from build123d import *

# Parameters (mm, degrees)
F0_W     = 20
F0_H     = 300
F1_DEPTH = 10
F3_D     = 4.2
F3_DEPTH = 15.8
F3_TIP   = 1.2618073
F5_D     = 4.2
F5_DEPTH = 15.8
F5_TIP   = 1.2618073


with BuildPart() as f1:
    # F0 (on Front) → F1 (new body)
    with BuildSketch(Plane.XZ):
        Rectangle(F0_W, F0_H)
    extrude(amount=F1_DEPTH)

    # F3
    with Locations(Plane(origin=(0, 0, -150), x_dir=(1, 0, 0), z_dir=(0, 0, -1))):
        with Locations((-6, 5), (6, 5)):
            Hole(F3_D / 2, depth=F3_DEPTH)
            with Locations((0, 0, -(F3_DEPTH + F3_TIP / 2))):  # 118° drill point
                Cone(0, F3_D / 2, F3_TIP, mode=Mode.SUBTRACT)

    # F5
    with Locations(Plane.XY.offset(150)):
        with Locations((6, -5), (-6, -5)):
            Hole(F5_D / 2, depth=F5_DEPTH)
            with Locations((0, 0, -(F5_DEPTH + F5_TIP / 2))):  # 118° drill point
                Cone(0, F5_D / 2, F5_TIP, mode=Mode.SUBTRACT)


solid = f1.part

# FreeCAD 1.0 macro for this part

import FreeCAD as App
import Part
import Sketcher
Q = App.Units.Quantity

doc = App.newDocument("Part")
body = doc.addObject("PartDesign::Body", "Body")

# Sketch on XZ plane
sketch1 = doc.addObject("Sketcher::SketchObject", "Sketch")
body.addObject(sketch1)
sketch1.AttachmentSupport = (doc.XZ_Plane, [""])
sketch1.MapMode = "FlatFace"
sketch1.addGeometry([
    Part.LineSegment(App.Vector(-10, 150, 0), App.Vector(-10, -150, 0)),
    Part.LineSegment(App.Vector(-10, -150, 0), App.Vector(10, -150, 0)),
    Part.LineSegment(App.Vector(10, -150, 0), App.Vector(10, 150, 0)),
    Part.LineSegment(App.Vector(10, 150, 0), App.Vector(-10, 150, 0)),
], False)
sketch1.addConstraint([
    Sketcher.Constraint("Coincident", 0, 2, 1, 1),
    Sketcher.Constraint("Coincident", 1, 2, 2, 1),
    Sketcher.Constraint("Coincident", 2, 2, 3, 1),
    Sketcher.Constraint("Coincident", 3, 2, 0, 1),
    Sketcher.Constraint("Vertical", 0),
    Sketcher.Constraint("Horizontal", 1),
    Sketcher.Constraint("Vertical", 2),
    Sketcher.Constraint("Horizontal", 3),
    Sketcher.Constraint("Symmetric", 0, 2, 2, 2, -1, 1),
    Sketcher.Constraint("DistanceX", 1, 1, 1, 2, Q("20 mm")),
    Sketcher.Constraint("DistanceY", 0, 2, 0, 1, Q("300 mm")),
])
pad1 = doc.addObject("PartDesign::Pad", "Pad")
body.addObject(pad1)
pad1.Profile = sketch1
pad1.Length = 10

# Sketch on XY plane
sketch2 = doc.addObject("Sketcher::SketchObject", "Sketch001")
body.addObject(sketch2)
sketch2.AttachmentSupport = (doc.XY_Plane, [""])
sketch2.MapMode = "FlatFace"
sketch2.AttachmentOffset = App.Placement(App.Vector(0, 0, -150), App.Rotation())
sketch2.addGeometry([
    Part.Circle(App.Vector(-6, -5, 0), App.Vector(0, 0, 1), 2.1),
    Part.Circle(App.Vector(6, -5, 0), App.Vector(0, 0, 1), 2.1),
], False)
sketch2.addConstraint([
    Sketcher.Constraint("Equal", 0, 1),
    Sketcher.Constraint("Symmetric", 0, 3, 1, 3, -2),
    Sketcher.Constraint("Diameter", 0, Q("4.2 mm")),
    Sketcher.Constraint("DistanceX", 0, 3, -1, 1, Q("6 mm")),
    Sketcher.Constraint("DistanceY", 0, 3, -1, 1, Q("5 mm")),
])
doc.recompute()
hole = doc.addObject("PartDesign::Hole", "Hole")
body.addObject(hole)
hole.Profile = sketch2
hole.ThreadType = "None"
hole.Diameter = 4.2
hole.DepthType = "Dimension"
hole.Depth = 15.8
hole.DrillPoint = "Angled"
hole.DrillPointAngle = 118
hole.Reversed = True

# Sketch on XY plane
sketch3 = doc.addObject("Sketcher::SketchObject", "Sketch002")
body.addObject(sketch3)
sketch3.AttachmentSupport = (doc.XY_Plane, [""])
sketch3.MapMode = "FlatFace"
sketch3.AttachmentOffset = App.Placement(App.Vector(0, 0, 150), App.Rotation())
sketch3.addGeometry([
    Part.Circle(App.Vector(6, -5, 0), App.Vector(0, 0, 1), 2.1),
    Part.Circle(App.Vector(-6, -5, 0), App.Vector(0, 0, 1), 2.1),
], False)
sketch3.addConstraint([
    Sketcher.Constraint("Equal", 0, 1),
    Sketcher.Constraint("Symmetric", 0, 3, 1, 3, -2),
    Sketcher.Constraint("Diameter", 0, Q("4.2 mm")),
    Sketcher.Constraint("DistanceX", -1, 1, 0, 3, Q("6 mm")),
    Sketcher.Constraint("DistanceY", 0, 3, -1, 1, Q("5 mm")),
])
doc.recompute()
hole2 = doc.addObject("PartDesign::Hole", "Hole001")
body.addObject(hole2)
hole2.Profile = sketch3
hole2.ThreadType = "None"
hole2.Diameter = 4.2
hole2.DepthType = "Dimension"
hole2.Depth = 15.8
hole2.DrillPoint = "Angled"
hole2.DrillPointAngle = 118

doc.recompute()
